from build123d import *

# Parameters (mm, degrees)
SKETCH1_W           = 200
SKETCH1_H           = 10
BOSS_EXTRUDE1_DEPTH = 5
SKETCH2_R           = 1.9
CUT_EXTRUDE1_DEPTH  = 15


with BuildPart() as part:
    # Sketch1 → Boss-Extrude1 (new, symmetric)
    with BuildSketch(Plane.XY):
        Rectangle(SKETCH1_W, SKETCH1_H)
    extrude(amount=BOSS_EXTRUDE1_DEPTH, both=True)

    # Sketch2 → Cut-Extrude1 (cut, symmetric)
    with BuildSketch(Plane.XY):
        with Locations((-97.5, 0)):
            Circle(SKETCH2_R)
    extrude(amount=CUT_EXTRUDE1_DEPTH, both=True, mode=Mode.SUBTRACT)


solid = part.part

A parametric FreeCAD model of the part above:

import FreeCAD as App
import Part
import Sketcher

V = App.Vector

doc = App.newDocument("Part")
body = doc.addObject("PartDesign::Body", "Body")

sketch1 = body.newObject("Sketcher::SketchObject", "Sketch")
sketch1.AttachmentSupport = (doc.getObject("XY_Plane"), [""])
sketch1.MapMode = "FlatFace"
sketch1.addGeometry([
    Part.LineSegment(V(-100, 5, 0), V(-100, -5, 0)),
    Part.LineSegment(V(-100, -5, 0), V(100, -5, 0)),
    Part.LineSegment(V(100, -5, 0), V(100, 5, 0)),
    Part.LineSegment(V(100, 5, 0), V(-100, 5, 0)),
], False)
sketch1.addConstraint([
    Sketcher.Constraint("Coincident", 0, 2, 1, 1),
    Sketcher.Constraint("Coincident", 1, 2, 2, 1),
    Sketcher.Constraint("Coincident", 2, 2, 3, 1),
    Sketcher.Constraint("Coincident", 3, 2, 0, 1),
    Sketcher.Constraint("Vertical", 0),
    Sketcher.Constraint("Horizontal", 1),
    Sketcher.Constraint("Vertical", 2),
    Sketcher.Constraint("Horizontal", 3),
    Sketcher.Constraint("Symmetric", 0, 2, 2, 2, -1, 1),
    Sketcher.Constraint("DistanceX", 1, 1, 1, 2, 200.0),
    Sketcher.Constraint("DistanceY", 0, 2, 0, 1, 10.0),
])
pad1 = body.newObject("PartDesign::Pad", "Pad")
pad1.Profile = sketch1
pad1.Length = 10
pad1.Midplane = True

sketch2 = body.newObject("Sketcher::SketchObject", "Sketch001")
sketch2.AttachmentSupport = (doc.getObject("XY_Plane"), [""])
sketch2.MapMode = "FlatFace"
sketch2.addGeometry(Part.Circle(V(-97.5, 0, 0), V(0, 0, 1), 1.9), False)
sketch2.addConstraint([
    Sketcher.Constraint("PointOnObject", 0, 3, -1),
    Sketcher.Constraint("Diameter", 0, 3.8),
    Sketcher.Constraint("DistanceX", 0, 3, -1, 1, 97.5),
])
pocket1 = body.newObject("PartDesign::Pocket", "Pocket")
pocket1.Profile = sketch2
pocket1.Length = 30
pocket1.Midplane = True

doc.recompute()
